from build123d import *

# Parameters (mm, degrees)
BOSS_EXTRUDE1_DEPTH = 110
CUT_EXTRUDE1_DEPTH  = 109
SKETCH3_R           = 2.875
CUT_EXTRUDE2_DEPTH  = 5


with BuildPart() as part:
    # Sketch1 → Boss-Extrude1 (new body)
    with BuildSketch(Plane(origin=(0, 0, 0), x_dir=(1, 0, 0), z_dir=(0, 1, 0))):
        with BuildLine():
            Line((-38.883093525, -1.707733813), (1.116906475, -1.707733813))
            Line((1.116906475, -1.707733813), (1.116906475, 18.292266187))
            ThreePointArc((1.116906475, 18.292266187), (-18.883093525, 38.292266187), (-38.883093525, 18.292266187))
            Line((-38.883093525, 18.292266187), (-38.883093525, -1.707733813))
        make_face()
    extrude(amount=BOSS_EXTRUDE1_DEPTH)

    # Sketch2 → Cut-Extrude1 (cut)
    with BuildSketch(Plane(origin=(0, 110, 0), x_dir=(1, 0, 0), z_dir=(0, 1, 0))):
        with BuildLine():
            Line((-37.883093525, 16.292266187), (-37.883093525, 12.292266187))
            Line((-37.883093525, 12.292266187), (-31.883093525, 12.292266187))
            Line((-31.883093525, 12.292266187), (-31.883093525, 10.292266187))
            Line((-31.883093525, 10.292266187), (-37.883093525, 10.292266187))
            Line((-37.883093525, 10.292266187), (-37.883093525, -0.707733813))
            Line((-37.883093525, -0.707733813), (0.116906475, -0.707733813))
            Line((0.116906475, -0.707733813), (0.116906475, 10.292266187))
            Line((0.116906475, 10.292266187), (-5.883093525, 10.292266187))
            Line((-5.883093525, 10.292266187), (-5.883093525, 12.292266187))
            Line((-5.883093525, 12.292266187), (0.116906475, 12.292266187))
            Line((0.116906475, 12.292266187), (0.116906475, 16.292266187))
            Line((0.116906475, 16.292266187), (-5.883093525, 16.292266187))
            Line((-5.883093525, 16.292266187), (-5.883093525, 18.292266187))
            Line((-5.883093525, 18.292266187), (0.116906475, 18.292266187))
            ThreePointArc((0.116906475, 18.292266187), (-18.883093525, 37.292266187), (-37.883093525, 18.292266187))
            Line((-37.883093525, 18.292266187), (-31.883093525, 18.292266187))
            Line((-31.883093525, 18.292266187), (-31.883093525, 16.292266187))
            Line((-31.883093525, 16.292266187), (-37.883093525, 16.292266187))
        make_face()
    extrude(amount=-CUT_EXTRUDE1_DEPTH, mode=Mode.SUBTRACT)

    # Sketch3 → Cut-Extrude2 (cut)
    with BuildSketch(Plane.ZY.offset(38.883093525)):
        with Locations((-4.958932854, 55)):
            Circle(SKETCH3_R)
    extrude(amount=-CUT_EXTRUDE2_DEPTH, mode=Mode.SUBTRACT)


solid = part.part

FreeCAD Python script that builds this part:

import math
import FreeCAD as App
import Part
import Sketcher
Q = App.Units.Quantity

doc = App.newDocument("Part")
params = doc.addObject("Spreadsheet::Sheet", "Params")
for row, (alias, value) in enumerate([
    ("sketch1_radius", "20 mm"),
    ("sketch1_height", "20 mm"),
    ("pad1_length", "110 mm"),
    ("sketch2_radius", "19 mm"),
    ("sketch2_width", "6 mm"),
    ("sketch2_height", "4 mm"),
    ("sketch2_height2", "2 mm"),
    ("sketch2_height3", "11 mm"),
    ("pocket1_length", "109 mm"),
    ("sketch3_diameter", "5.75 mm"),
    ("pocket2_length", "5 mm"),
], start=1):
    params.set(f"A{row}", alias)
    params.set(f"B{row}", "=" + value)
    params.setAlias(f"B{row}", alias)

body = doc.addObject("PartDesign::Body", "Body")

sketch1 = doc.addObject("Sketcher::SketchObject", "Sketch")
body.addObject(sketch1)
sketch1.AttachmentSupport = (doc.XZ_Plane, [""])
sketch1.MapMode = "FlatFace"
sketch1.addGeometry([
    Part.LineSegment(App.Vector(-39, 2, 0), App.Vector(1, 2, 0)),
    Part.LineSegment(App.Vector(1, 2, 0), App.Vector(1, -18, 0)),
    Part.ArcOfCircle(Part.Circle(App.Vector(-19, -18, 0), App.Vector(0, 0, 1), 20), math.radians(180), math.radians(360)),
    Part.LineSegment(App.Vector(-39, -18, 0), App.Vector(-39, 2, 0)),
], False)
sketch1.addConstraint([
    Sketcher.Constraint("Coincident", 0, 2, 1, 1),
    Sketcher.Constraint("Tangent", 1, 2, 2, 2),
    Sketcher.Constraint("Tangent", 2, 1, 3, 1),
    Sketcher.Constraint("Coincident", 3, 2, 0, 1),
    Sketcher.Constraint("Horizontal", 0),
    Sketcher.Constraint("Vertical", 1),
    Sketcher.Constraint("Vertical", 3),
    Sketcher.Constraint("Radius", 2, Q("20 mm")),
    Sketcher.Constraint("DistanceY", 1, 2, 1, 1, Q("20 mm")),
    Sketcher.Constraint("DistanceX", 2, 3, -1, 1, Q("18.883094 mm")),
    Sketcher.Constraint("DistanceY", 2, 3, -1, 1, Q("18.292266 mm")),
])
sketch1.setExpression("Constraints[7]", "Params.sketch1_radius")
sketch1.setExpression("Constraints[8]", "Params.sketch1_height")
pad1 = doc.addObject("PartDesign::Pad", "Pad")
body.addObject(pad1)
pad1.Profile = sketch1
pad1.setExpression("Length", "Params.pad1_length")
pad1.Reversed = True

sketch2 = doc.addObject("Sketcher::SketchObject", "Sketch001")
body.addObject(sketch2)
sketch2.AttachmentSupport = (doc.XZ_Plane, [""])
sketch2.MapMode = "FlatFace"
sketch2.AttachmentOffset = App.Placement(App.Vector(0, 0, -110), App.Rotation())
sketch2.addGeometry([
    Part.LineSegment(App.Vector(-37.9, -16.3, 0), App.Vector(-37.9, -12.3, 0)),
    Part.LineSegment(App.Vector(-37.9, -12.3, 0), App.Vector(-31.9, -12.3, 0)),
    Part.LineSegment(App.Vector(-31.9, -12.3, 0), App.Vector(-31.9, -10.3, 0)),
    Part.LineSegment(App.Vector(-31.9, -10.3, 0), App.Vector(-37.9, -10.3, 0)),
    Part.LineSegment(App.Vector(-37.9, -10.3, 0), App.Vector(-37.9, 0.7, 0)),
    Part.LineSegment(App.Vector(-37.9, 0.7, 0), App.Vector(0.1, 0.7, 0)),
    Part.LineSegment(App.Vector(0.1, 0.7, 0), App.Vector(0.1, -10.3, 0)),
    Part.LineSegment(App.Vector(0.1, -10.3, 0), App.Vector(-5.9, -10.3, 0)),
    Part.LineSegment(App.Vector(-5.9, -10.3, 0), App.Vector(-5.9, -12.3, 0)),
    Part.LineSegment(App.Vector(-5.9, -12.3, 0), App.Vector(0.1, -12.3, 0)),
    Part.LineSegment(App.Vector(0.1, -12.3, 0), App.Vector(0.1, -16.3, 0)),
    Part.LineSegment(App.Vector(0.1, -16.3, 0), App.Vector(-5.9, -16.3, 0)),
    Part.LineSegment(App.Vector(-5.9, -16.3, 0), App.Vector(-5.9, -18.3, 0)),
    Part.LineSegment(App.Vector(-5.9, -18.3, 0), App.Vector(0.1, -18.3, 0)),
    Part.ArcOfCircle(Part.Circle(App.Vector(-18.9, -18.3, 0), App.Vector(0, 0, 1), 19), math.radians(180), math.radians(360)),
    Part.LineSegment(App.Vector(-37.9, -18.3, 0), App.Vector(-31.9, -18.3, 0)),
    Part.LineSegment(App.Vector(-31.9, -18.3, 0), App.Vector(-31.9, -16.3, 0)),
    Part.LineSegment(App.Vector(-31.9, -16.3, 0), App.Vector(-37.9, -16.3, 0)),
], False)
sketch2.addConstraint([
    Sketcher.Constraint("Coincident", 0, 2, 1, 1),
    Sketcher.Constraint("Coincident", 1, 2, 2, 1),
    Sketcher.Constraint("Coincident", 2, 2, 3, 1),
    Sketcher.Constraint("Coincident", 3, 2, 4, 1),
    Sketcher.Constraint("Coincident", 4, 2, 5, 1),
    Sketcher.Constraint("Coincident", 5, 2, 6, 1),
    Sketcher.Constraint("Coincident", 6, 2, 7, 1),
    Sketcher.Constraint("Coincident", 7, 2, 8, 1),
    Sketcher.Constraint("Coincident", 8, 2, 9, 1),
    Sketcher.Constraint("Coincident", 9, 2, 10, 1),
    Sketcher.Constraint("Coincident", 10, 2, 11, 1),
    Sketcher.Constraint("Coincident", 11, 2, 12, 1),
    Sketcher.Constraint("Coincident", 12, 2, 13, 1),
    Sketcher.Constraint("Coincident", 13, 2, 14, 2),
    Sketcher.Constraint("Coincident", 14, 1, 15, 1),
    Sketcher.Constraint("Coincident", 15, 2, 16, 1),
    Sketcher.Constraint("Coincident", 16, 2, 17, 1),
    Sketcher.Constraint("Coincident", 17, 2, 0, 1),
    Sketcher.Constraint("Vertical", 0),
    Sketcher.Constraint("Horizontal", 1),
    Sketcher.Constraint("Vertical", 2),
    Sketcher.Constraint("Horizontal", 3),
    Sketcher.Constraint("Vertical", 4),
    Sketcher.Constraint("Horizontal", 5),
    Sketcher.Constraint("Vertical", 6),
    Sketcher.Constraint("Horizontal", 7),
    Sketcher.Constraint("Vertical", 8),
    Sketcher.Constraint("Horizontal", 9),
    Sketcher.Constraint("Vertical", 10),
    Sketcher.Constraint("Horizontal", 11),
    Sketcher.Constraint("Vertical", 12),
    Sketcher.Constraint("Horizontal", 13),
    Sketcher.Constraint("Horizontal", 15),
    Sketcher.Constraint("Vertical", 16),
    Sketcher.Constraint("Horizontal", 17),
    Sketcher.Constraint("Horizontal", 3, 2, 6, 2),
    Sketcher.Constraint("Horizontal", 1, 2, 8, 2),
    Sketcher.Constraint("Horizontal", 14, 3, 12, 2),
    Sketcher.Constraint("Horizontal", 13, 2, 14, 1),
    Sketcher.Constraint("Horizontal", 11, 2, 16, 2),
    Sketcher.Constraint("Vertical", 0, 2, 3, 2),
    Sketcher.Constraint("Vertical", 6, 2, 9, 2),
    Sketcher.Constraint("Vertical", 8, 2, 11, 2),
    Sketcher.Constraint("Vertical", 10, 2, 13, 2),
    Sketcher.Constraint("Vertical", 4, 2, 14, 1),
    Sketcher.Constraint("Vertical", 2, 2, 15, 2),
    Sketcher.Constraint("Equal", 3, 7),
    Sketcher.Constraint("Equal", 8, 12),
    Sketcher.Constraint("Radius", 14, Q("19 mm")),
    Sketcher.Constraint("DistanceX", 1, 1, 1, 2, Q("6 mm")),
    Sketcher.Constraint("DistanceY", 0, 1, 0, 2, Q("4 mm")),
    Sketcher.Constraint("DistanceY", 2, 1, 2, 2, Q("2 mm")),
    Sketcher.Constraint("DistanceY", 4, 1, 4, 2, Q("11 mm")),
    Sketcher.Constraint("DistanceX", 14, 3, -1, 1, Q("18.883094 mm")),
    Sketcher.Constraint("DistanceY", 14, 3, -1, 1, Q("18.292266 mm")),
])
sketch2.setExpression("Constraints[48]", "Params.sketch2_radius")
sketch2.setExpression("Constraints[49]", "Params.sketch2_width")
sketch2.setExpression("Constraints[50]", "Params.sketch2_height")
sketch2.setExpression("Constraints[51]", "Params.sketch2_height2")
sketch2.setExpression("Constraints[52]", "Params.sketch2_height3")
pocket1 = doc.addObject("PartDesign::Pocket", "Pocket")
body.addObject(pocket1)
pocket1.Profile = sketch2
pocket1.setExpression("Length", "Params.pocket1_length")
pocket1.Reversed = True

sketch3 = doc.addObject("Sketcher::SketchObject", "Sketch002")
body.addObject(sketch3)
sketch3.AttachmentSupport = (doc.YZ_Plane, [""])
sketch3.MapMode = "FlatFace"
sketch3.AttachmentOffset = App.Placement(App.Vector(0, 0, -38.883094), App.Rotation())
sketch3.addGeometry(Part.Circle(App.Vector(55, -5, 0), App.Vector(0, 0, 1), 2.9), False)
sketch3.addConstraint([
    Sketcher.Constraint("Diameter", 0, Q("5.75 mm")),
    Sketcher.Constraint("DistanceX", -1, 1, 0, 3, Q("55 mm")),
    Sketcher.Constraint("DistanceY", 0, 3, -1, 1, Q("4.958933 mm")),
])
sketch3.setExpression("Constraints[0]", "Params.sketch3_diameter")
pocket2 = doc.addObject("PartDesign::Pocket", "Pocket001")
body.addObject(pocket2)
pocket2.Profile = sketch3
pocket2.setExpression("Length", "Params.pocket2_length")
pocket2.Reversed = True

doc.recompute()
